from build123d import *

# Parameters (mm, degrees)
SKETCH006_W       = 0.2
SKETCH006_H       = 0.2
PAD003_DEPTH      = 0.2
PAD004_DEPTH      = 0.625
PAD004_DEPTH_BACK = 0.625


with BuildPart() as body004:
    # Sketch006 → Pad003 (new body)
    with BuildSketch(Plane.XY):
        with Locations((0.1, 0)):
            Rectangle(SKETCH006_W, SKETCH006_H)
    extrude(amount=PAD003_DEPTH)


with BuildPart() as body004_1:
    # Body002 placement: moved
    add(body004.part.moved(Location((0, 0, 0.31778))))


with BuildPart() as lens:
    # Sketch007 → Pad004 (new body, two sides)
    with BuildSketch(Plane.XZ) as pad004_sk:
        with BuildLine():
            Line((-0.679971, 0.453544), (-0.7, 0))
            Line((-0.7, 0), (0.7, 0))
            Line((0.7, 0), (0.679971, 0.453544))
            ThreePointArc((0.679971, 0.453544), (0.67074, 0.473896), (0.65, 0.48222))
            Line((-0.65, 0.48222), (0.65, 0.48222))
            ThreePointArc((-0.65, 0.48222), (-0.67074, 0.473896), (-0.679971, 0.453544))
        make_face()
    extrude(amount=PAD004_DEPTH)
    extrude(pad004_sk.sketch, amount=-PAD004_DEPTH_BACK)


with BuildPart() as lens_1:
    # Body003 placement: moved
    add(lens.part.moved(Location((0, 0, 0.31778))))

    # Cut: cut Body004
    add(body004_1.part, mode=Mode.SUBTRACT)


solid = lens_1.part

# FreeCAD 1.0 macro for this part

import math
import FreeCAD as App
import Part
import Sketcher

V = App.Vector
Q = App.Units.Quantity

doc = App.newDocument("Part")
body = doc.addObject("PartDesign::Body", "Body")

sketch1 = body.newObject("Sketcher::SketchObject", "Sketch")
sketch1.AttachmentSupport = (doc.getObject("XY_Plane"), [""])
sketch1.MapMode = "FlatFace"
sketch1.addGeometry([
    Part.LineSegment(V(0, 0.1, 0), V(0, -0.1, 0)),
    Part.LineSegment(V(0, -0.1, 0), V(0.2, -0.1, 0)),
    Part.LineSegment(V(0.2, -0.1, 0), V(0.2, 0.1, 0)),
    Part.LineSegment(V(0.2, 0.1, 0), V(0, 0.1, 0)),
], False)
sketch1.addConstraint([
    Sketcher.Constraint("Coincident", 0, 2, 1, 1),
    Sketcher.Constraint("Coincident", 1, 2, 2, 1),
    Sketcher.Constraint("Coincident", 2, 2, 3, 1),
    Sketcher.Constraint("Coincident", 3, 2, 0, 1),
    Sketcher.Constraint("Vertical", 0),
    Sketcher.Constraint("Horizontal", 1),
    Sketcher.Constraint("Vertical", 2),
    Sketcher.Constraint("Horizontal", 3),
    Sketcher.Constraint("Symmetric", 0, 2, 3, 2, -1, 1),
    Sketcher.Constraint("Equal", 3, 0),
    Sketcher.Constraint("DistanceX", 1, 1, 1, 2, Q("0.2 mm")),
])
pad1 = body.newObject("PartDesign::Pad", "Pad")
pad1.Profile = sketch1
pad1.Length = 0.2
body2 = doc.addObject("PartDesign::Body", "Body001")
doc.recompute()

body.Placement = App.Placement(V(0, 0, 0.31778), App.Rotation(V(0, 0, 1), 0))
boolean = body2.newObject("PartDesign::Boolean", "Boolean")
boolean.Type = "Fuse"
boolean.addObjects([body])
body3 = doc.addObject("PartDesign::Body", "Body002")

sketch2 = body3.newObject("Sketcher::SketchObject", "Sketch001")
sketch2.AttachmentSupport = (doc.getObject("XZ_Plane002"), [""])
sketch2.MapMode = "FlatFace"
sketch2.addGeometry([
    Part.LineSegment(V(-0.679971, 0.453544, 0), V(-0.7, 0, 0)),
    Part.LineSegment(V(-0.7, 0, 0), V(0.7, 0, 0)),
    Part.LineSegment(V(0.7, 0, 0), V(0.679971, 0.453544, 0)),
    Part.ArcOfCircle(Part.Circle(V(0.65, 0.452219, 0), V(0, 0, 1), 0.030001), math.radians(2.530506), math.radians(89.99941)),
    Part.LineSegment(V(0.65, 0.48222, 0), V(-0.65, 0.48222, 0)),
    Part.ArcOfCircle(Part.Circle(V(-0.65, 0.452219, 0), V(0, 0, 1), 0.030001), math.radians(90.00059), math.radians(177.469494)),
], False)
sketch2.addConstraint([
    Sketcher.Constraint("Coincident", 0, 2, 1, 1),
    Sketcher.Constraint("Coincident", 1, 2, 2, 1),
    Sketcher.Constraint("Coincident", 2, 2, 3, 1),
    Sketcher.Constraint("Coincident", 3, 2, 4, 1),
    Sketcher.Constraint("Coincident", 4, 2, 5, 1),
    Sketcher.Constraint("Coincident", 5, 2, 0, 1),
    Sketcher.Constraint("Horizontal", 1),
    Sketcher.Constraint("Horizontal", 4),
    Sketcher.Constraint("Equal", 3, 5),
    Sketcher.Constraint("Symmetric", 0, 2, 1, 2, -1, 1),
    Sketcher.Constraint("Symmetric", 2, 2, 5, 2, -2),
    Sketcher.Constraint("Vertical", 5, 3, 4, 2),
    Sketcher.Constraint("Radius", 3, Q("0.030001 mm")),
    Sketcher.Constraint("DistanceX", 1, 1, 1, 2, Q("1.4 mm")),
    Sketcher.Constraint("DistanceX", 4, 2, 4, 1, Q("1.3 mm")),
    Sketcher.Constraint("DistanceX", 5, 3, 3, 3, Q("1.299999 mm")),
    Sketcher.Constraint("DistanceY", -1, 1, 3, 3, Q("0.452219 mm")),
    Sketcher.Constraint("Distance", 0, Q("0.453986 mm")),
])
pad2 = body3.newObject("PartDesign::Pad", "Pad001")
pad2.Profile = sketch2
pad2.Type = "TwoLengths"
pad2.Length = 0.625
pad2.Length2 = 0.625
body4 = doc.addObject("PartDesign::Body", "Body003")
doc.recompute()

body3.Placement = App.Placement(V(0, 0, 0.31778), App.Rotation(V(0, 0, 1), 0))
boolean2 = body4.newObject("PartDesign::Boolean", "Boolean001")
boolean2.Type = "Fuse"
boolean2.addObjects([body3])
doc.recompute()

boolean3 = body4.newObject("PartDesign::Boolean", "Boolean002")
boolean3.Type = "Cut"
boolean3.addObjects([body2])

doc.recompute()
